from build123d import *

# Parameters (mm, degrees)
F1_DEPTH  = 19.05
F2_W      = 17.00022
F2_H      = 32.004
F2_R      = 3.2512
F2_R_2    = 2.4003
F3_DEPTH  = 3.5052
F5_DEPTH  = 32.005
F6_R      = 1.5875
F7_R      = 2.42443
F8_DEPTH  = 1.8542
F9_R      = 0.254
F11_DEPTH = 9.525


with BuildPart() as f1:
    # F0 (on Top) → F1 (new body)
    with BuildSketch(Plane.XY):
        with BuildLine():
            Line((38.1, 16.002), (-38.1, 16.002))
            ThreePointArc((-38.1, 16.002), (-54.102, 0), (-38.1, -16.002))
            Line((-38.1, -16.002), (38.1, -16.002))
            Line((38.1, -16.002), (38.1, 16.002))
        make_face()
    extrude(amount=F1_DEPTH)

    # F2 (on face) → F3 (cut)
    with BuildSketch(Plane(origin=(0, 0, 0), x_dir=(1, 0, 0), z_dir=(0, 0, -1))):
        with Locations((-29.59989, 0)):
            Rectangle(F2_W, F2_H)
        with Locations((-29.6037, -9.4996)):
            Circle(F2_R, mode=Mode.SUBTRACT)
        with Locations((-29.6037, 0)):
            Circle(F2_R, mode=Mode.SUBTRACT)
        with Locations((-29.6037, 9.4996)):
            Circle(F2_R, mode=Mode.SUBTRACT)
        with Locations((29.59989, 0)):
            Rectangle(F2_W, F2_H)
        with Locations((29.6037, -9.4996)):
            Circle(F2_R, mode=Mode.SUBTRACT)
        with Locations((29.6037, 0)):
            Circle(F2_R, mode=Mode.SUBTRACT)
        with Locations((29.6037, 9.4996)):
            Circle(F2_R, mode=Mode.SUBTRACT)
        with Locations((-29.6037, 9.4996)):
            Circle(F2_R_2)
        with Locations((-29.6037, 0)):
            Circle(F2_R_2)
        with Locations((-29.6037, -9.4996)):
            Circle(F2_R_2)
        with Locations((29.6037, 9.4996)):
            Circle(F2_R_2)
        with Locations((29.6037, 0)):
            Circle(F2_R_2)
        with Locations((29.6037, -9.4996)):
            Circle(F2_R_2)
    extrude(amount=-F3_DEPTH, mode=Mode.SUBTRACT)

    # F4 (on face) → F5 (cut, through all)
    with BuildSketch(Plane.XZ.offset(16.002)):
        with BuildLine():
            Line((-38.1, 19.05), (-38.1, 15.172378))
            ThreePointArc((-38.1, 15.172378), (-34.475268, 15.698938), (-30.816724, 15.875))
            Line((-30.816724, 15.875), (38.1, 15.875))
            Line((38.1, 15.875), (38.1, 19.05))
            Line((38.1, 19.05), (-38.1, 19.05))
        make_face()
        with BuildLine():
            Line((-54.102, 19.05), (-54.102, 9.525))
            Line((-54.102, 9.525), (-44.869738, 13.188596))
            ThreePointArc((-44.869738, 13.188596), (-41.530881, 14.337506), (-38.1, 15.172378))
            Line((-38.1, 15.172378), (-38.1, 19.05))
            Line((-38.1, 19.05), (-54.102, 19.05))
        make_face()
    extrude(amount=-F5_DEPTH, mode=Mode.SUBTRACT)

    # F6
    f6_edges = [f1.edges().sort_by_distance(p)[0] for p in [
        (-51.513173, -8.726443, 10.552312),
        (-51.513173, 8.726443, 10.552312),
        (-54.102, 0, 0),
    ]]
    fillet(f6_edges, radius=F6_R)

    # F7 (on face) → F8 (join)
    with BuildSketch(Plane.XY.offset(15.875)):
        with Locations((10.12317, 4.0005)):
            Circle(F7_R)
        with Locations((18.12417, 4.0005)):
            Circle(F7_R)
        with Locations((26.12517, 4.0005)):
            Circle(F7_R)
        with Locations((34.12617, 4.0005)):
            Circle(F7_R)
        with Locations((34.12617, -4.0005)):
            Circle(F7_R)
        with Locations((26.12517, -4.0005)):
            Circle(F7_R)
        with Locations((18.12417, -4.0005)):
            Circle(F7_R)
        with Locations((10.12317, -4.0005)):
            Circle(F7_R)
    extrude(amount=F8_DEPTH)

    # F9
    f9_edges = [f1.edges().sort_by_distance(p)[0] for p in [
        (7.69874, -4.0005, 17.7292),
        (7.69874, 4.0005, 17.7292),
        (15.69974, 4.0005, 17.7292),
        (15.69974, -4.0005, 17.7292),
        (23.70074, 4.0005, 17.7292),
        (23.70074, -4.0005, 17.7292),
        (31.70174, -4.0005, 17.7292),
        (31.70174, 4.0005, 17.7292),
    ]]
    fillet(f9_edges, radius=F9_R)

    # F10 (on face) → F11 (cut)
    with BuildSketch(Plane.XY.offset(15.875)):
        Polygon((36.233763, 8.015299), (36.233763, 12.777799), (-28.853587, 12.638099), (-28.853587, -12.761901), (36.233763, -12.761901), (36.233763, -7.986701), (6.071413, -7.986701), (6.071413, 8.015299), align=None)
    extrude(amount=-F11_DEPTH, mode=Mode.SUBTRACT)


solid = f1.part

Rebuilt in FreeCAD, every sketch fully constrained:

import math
import FreeCAD as App
import Part
import Sketcher
Q = App.Units.Quantity


def edges_at(feature, points):
    """Names of the edges that pass closest to the given points."""
    edges = feature.Shape.Edges
    near = lambda p: min(range(len(edges)), key=lambda i: edges[i].distToShape(Part.Vertex(*p))[0])
    return sorted({f"Edge{near(p) + 1}" for p in points})

doc = App.newDocument("Part")
params = doc.addObject("Spreadsheet::Sheet", "Params")
for row, (alias, value) in enumerate([
    ("sketch1_width", "3 in"),
    ("sketch1_radius", "0.63 in"),
    ("pad1_length", "0.75 in"),
    ("sketch2_diameter", "0.256 in"),
    ("sketch2_diameter2", "0.189 in"),
    ("sketch2_height", "1.26 in"),
    ("pocket1_length", "0.138 in"),
    ("sketch3_width", "3.63 in"),
    ("sketch3_height", "0.125 in"),
    ("sketch3_height2", "0.375 in"),
    ("fillet_radius", "0.0625 in"),
    ("pad2_length", "0.073 in"),
    ("fillet2_radius", "0.01 in"),
    ("sketch5_height", "1 in"),
    ("sketch5_height2", "0.63 in"),
    ("sketch5_height3", "0.1875 in"),
    ("sketch5_height4", "0.188 in"),
    ("sketch5_length", "2.5625 in"),
    ("pocket3_length", "0.375 in"),
], start=1):
    params.set(f"A{row}", alias)
    params.set(f"B{row}", "=" + value)
    params.setAlias(f"B{row}", alias)

body = doc.addObject("PartDesign::Body", "Body")

# Sketch on XY plane
sketch1 = body.newObject("Sketcher::SketchObject", "Sketch")
sketch1.AttachmentSupport = (doc.getObject("XY_Plane"), [""])
sketch1.MapMode = "FlatFace"
sketch1.addGeometry([
    Part.LineSegment(App.Vector(38, 16, 0), App.Vector(-38, 16, 0)),
    Part.ArcOfCircle(Part.Circle(App.Vector(-38, 0, 0), App.Vector(0, 0, 1), 16), math.radians(90), math.radians(270)),
    Part.LineSegment(App.Vector(-38, -16, 0), App.Vector(38, -16, 0)),
    Part.LineSegment(App.Vector(38, -16, 0), App.Vector(38, 16, 0)),
], False)
sketch1.addConstraint([
    Sketcher.Constraint("Tangent", 0, 2, 1, 1),
    Sketcher.Constraint("Tangent", 1, 2, 2, 1),
    Sketcher.Constraint("Coincident", 2, 2, 3, 1),
    Sketcher.Constraint("Coincident", 3, 2, 0, 1),
    Sketcher.Constraint("Horizontal", 0),
    Sketcher.Constraint("Horizontal", 2),
    Sketcher.Constraint("Vertical", 3),
    Sketcher.Constraint("Symmetric", 0, 2, 2, 2, -1, 1),
    Sketcher.Constraint("DistanceX", 0, 2, 0, 1, Q("3 in")),
    Sketcher.Constraint("Radius", 1, Q("0.63 in")),
])
sketch1.setExpression("Constraints[8]", "Params.sketch1_width")
sketch1.setExpression("Constraints[9]", "Params.sketch1_radius")
pad1 = body.newObject("PartDesign::Pad", "Pad")
pad1.Profile = sketch1
pad1.setExpression("Length", "Params.pad1_length")

# Sketch on XY plane
sketch2 = body.newObject("Sketcher::SketchObject", "Sketch001")
sketch2.AttachmentSupport = (doc.getObject("XY_Plane"), [""])
sketch2.MapMode = "FlatFace"
sketch2.addGeometry([
    Part.LineSegment(App.Vector(-38.1, -16, 0), App.Vector(-38.1, 16, 0)),  # 0
    Part.LineSegment(App.Vector(-38.1, 16, 0), App.Vector(-21.1, 16, 0)),  # 1
    Part.LineSegment(App.Vector(-21.1, 16, 0), App.Vector(-21.1, -16, 0)),  # 2
    Part.LineSegment(App.Vector(-21.1, -16, 0), App.Vector(-38.1, -16, 0)),  # 3
    Part.Circle(App.Vector(-29.6, 9.5, 0), App.Vector(0, 0, 1), 3.3),  # 4
    Part.Circle(App.Vector(-29.6, 0, 0), App.Vector(0, 0, 1), 3.3),  # 5
    Part.Circle(App.Vector(-29.6, -9.5, 0), App.Vector(0, 0, 1), 3.3),  # 6
    Part.LineSegment(App.Vector(21.1, -16, 0), App.Vector(21.1, 16, 0)),  # 7
    Part.LineSegment(App.Vector(21.1, 16, 0), App.Vector(38.1, 16, 0)),  # 8
    Part.LineSegment(App.Vector(38.1, 16, 0), App.Vector(38.1, -16, 0)),  # 9
    Part.LineSegment(App.Vector(38.1, -16, 0), App.Vector(21.1, -16, 0)),  # 10
    Part.Circle(App.Vector(29.6, 9.5, 0), App.Vector(0, 0, 1), 3.3),  # 11
    Part.Circle(App.Vector(29.6, 0, 0), App.Vector(0, 0, 1), 3.3),  # 12
    Part.Circle(App.Vector(29.6, -9.5, 0), App.Vector(0, 0, 1), 3.3),  # 13
    Part.Circle(App.Vector(-29.6, -9.5, 0), App.Vector(0, 0, 1), 2.4),  # 14
    Part.Circle(App.Vector(-29.6, 0, 0), App.Vector(0, 0, 1), 2.4),  # 15
    Part.Circle(App.Vector(-29.6, 9.5, 0), App.Vector(0, 0, 1), 2.4),  # 16
    Part.Circle(App.Vector(29.6, -9.5, 0), App.Vector(0, 0, 1), 2.4),  # 17
    Part.Circle(App.Vector(29.6, 0, 0), App.Vector(0, 0, 1), 2.4),  # 18
    Part.Circle(App.Vector(29.6, 9.5, 0), App.Vector(0, 0, 1), 2.4),  # 19
], False)
sketch2.addConstraint([
    Sketcher.Constraint("Coincident", 0, 2, 1, 1),
    Sketcher.Constraint("Coincident", 1, 2, 2, 1),
    Sketcher.Constraint("Coincident", 2, 2, 3, 1),
    Sketcher.Constraint("Coincident", 3, 2, 0, 1),
    Sketcher.Constraint("Coincident", 7, 2, 8, 1),
    Sketcher.Constraint("Coincident", 8, 2, 9, 1),
    Sketcher.Constraint("Coincident", 9, 2, 10, 1),
    Sketcher.Constraint("Coincident", 10, 2, 7, 1),
    Sketcher.Constraint("Vertical", 0),
    Sketcher.Constraint("Horizontal", 1),
    Sketcher.Constraint("Vertical", 2),
    Sketcher.Constraint("Horizontal", 3),
    Sketcher.Constraint("Vertical", 7),
    Sketcher.Constraint("Horizontal", 8),
    Sketcher.Constraint("Vertical", 9),
    Sketcher.Constraint("Horizontal", 10),
    Sketcher.Constraint("Coincident", 14, 3, 6, 3),
    Sketcher.Constraint("Coincident", 15, 3, 5, 3),
    Sketcher.Constraint("Coincident", 16, 3, 4, 3),
    Sketcher.Constraint("Coincident", 17, 3, 13, 3),
    Sketcher.Constraint("Coincident", 18, 3, 12, 3),
    Sketcher.Constraint("Coincident", 19, 3, 11, 3),
    Sketcher.Constraint("Equal", 4, 5),
    Sketcher.Constraint("Equal", 5, 6),
    Sketcher.Constraint("Equal", 6, 11),
    Sketcher.Constraint("Equal", 11, 12),
    Sketcher.Constraint("Equal", 12, 13),
    Sketcher.Constraint("Equal", 14, 15),
    Sketcher.Constraint("Equal", 15, 16),
    Sketcher.Constraint("Equal", 16, 17),
    Sketcher.Constraint("Equal", 17, 18),
    Sketcher.Constraint("Equal", 18, 19),
    Sketcher.Constraint("Symmetric", 6, 3, 11, 3, -1, 1),
    Sketcher.Constraint("Symmetric", 5, 3, 12, 3, -1, 1),
    Sketcher.Constraint("Symmetric", 4, 3, 13, 3, -1, 1),
    Sketcher.Constraint("Symmetric", 2, 2, 7, 2, -1, 1),
    Sketcher.Constraint("Symmetric", 0, 2, 9, 2, -1, 1),
    Sketcher.Constraint("Symmetric", 4, 3, 11, 3, -2),
    Sketcher.Constraint("PointOnObject", 5, 3, -1),
    Sketcher.Constraint("Horizontal", 1, 2, 7, 2),
    Sketcher.Constraint("Vertical", 4, 3, 5, 3),
    Sketcher.Constraint("Diameter", 4, Q("0.256 in")),
    Sketcher.Constraint("Diameter", 14, Q("0.189 in")),
    Sketcher.Constraint("DistanceY", 0, 1, 0, 2, Q("1.26 in")),
    Sketcher.Constraint("DistanceX", 0, 2, -1, 1, Q("1.5 in")),
    Sketcher.Constraint("DistanceX", 1, 1, 1, 2, Q("0.6693 in")),
    Sketcher.Constraint("DistanceY", -1, 1, 4, 3, Q("0.374 in")),
    Sketcher.Constraint("DistanceX", 4, 3, 11, 3, Q("2.331 in")),
])
sketch2.setExpression("Constraints[41]", "Params.sketch2_diameter")
sketch2.setExpression("Constraints[42]", "Params.sketch2_diameter2")
sketch2.setExpression("Constraints[43]", "Params.sketch2_height")
pocket1 = body.newObject("PartDesign::Pocket", "Pocket")
pocket1.Profile = sketch2
pocket1.setExpression("Length", "Params.pocket1_length")
pocket1.Reversed = True

# Sketch on XZ plane
sketch3 = body.newObject("Sketcher::SketchObject", "Sketch002")
sketch3.AttachmentSupport = (doc.getObject("XZ_Plane"), [""])
sketch3.MapMode = "FlatFace"
sketch3.AttachmentOffset = App.Placement(App.Vector(0, 0, 0.63 * 25.4), App.Rotation())
sketch3.addGeometry([
    Part.ArcOfCircle(Part.Circle(App.Vector(-30.8, -22.2, 0), App.Vector(0, 0, 1), 38.1), math.radians(90), math.radians(101.02)),  # 0
    Part.LineSegment(App.Vector(-30.8, 15.9, 0), App.Vector(38.1, 15.9, 0)),  # 1
    Part.LineSegment(App.Vector(38.1, 15.9, 0), App.Vector(38.1, 19.1, 0)),  # 2
    Part.LineSegment(App.Vector(38.1, 19.1, 0), App.Vector(-54.1, 19.1, 0)),  # 3
    Part.LineSegment(App.Vector(-54.1, 19.1, 0), App.Vector(-54.1, 9.5, 0)),  # 4
    Part.LineSegment(App.Vector(-54.1, 9.5, 0), App.Vector(-44.9, 13.2, 0)),  # 5
    Part.ArcOfCircle(Part.Circle(App.Vector(-30.8, -22.2, 0), App.Vector(0, 0, 1), 38.1), math.radians(101.02), math.radians(111.64)),  # 6
], False)
sketch3.addConstraint([
    Sketcher.Constraint("Tangent", 0, 1, 1, 1),
    Sketcher.Constraint("Coincident", 1, 2, 2, 1),
    Sketcher.Constraint("Coincident", 2, 2, 3, 1),
    Sketcher.Constraint("Coincident", 3, 2, 4, 1),
    Sketcher.Constraint("Coincident", 4, 2, 5, 1),
    Sketcher.Constraint("Tangent", 5, 2, 6, 2),
    Sketcher.Constraint("Tangent", 6, 1, 0, 2),
    Sketcher.Constraint("Horizontal", 1),
    Sketcher.Constraint("Vertical", 2),
    Sketcher.Constraint("Horizontal", 3),
    Sketcher.Constraint("Vertical", 4),
    Sketcher.Constraint("DistanceX", 3, 2, 3, 1, Q("3.63 in")),
    Sketcher.Constraint("DistanceX", -1, 1, 1, 2, Q("1.5 in")),
    Sketcher.Constraint("DistanceX", 6, 1, -1, 1, Q("1.5 in")),
    Sketcher.Constraint("DistanceY", 2, 1, 2, 2, Q("0.125 in")),
    Sketcher.Constraint("DistanceY", 4, 2, 4, 1, Q("0.375 in")),
    Sketcher.Constraint("DistanceY", -1, 1, 2, 2, Q("0.75 in")),
    Sketcher.Constraint("Radius", 0, 38.099937),
    Sketcher.Constraint("Radius", 6, 38.099945),
    Sketcher.Constraint("DistanceX", 5, 2, 6, 3, 14.052999),
])
sketch3.setExpression("Constraints[11]", "Params.sketch3_width")
sketch3.setExpression("Constraints[14]", "Params.sketch3_height")
sketch3.setExpression("Constraints[15]", "Params.sketch3_height2")
pocket2 = body.newObject("PartDesign::Pocket", "Pocket001")
pocket2.Profile = sketch3
pocket2.Type = "ThroughAll"
doc.recompute()

fillet = body.newObject("PartDesign::Fillet", "Fillet")
fillet.Base = (pocket2, edges_at(pocket2, [(-51.513, -8.726, 10.552), (-51.513, 8.726, 10.552), (-54.102, 0, 0)]))
fillet.setExpression("Radius", "Params.fillet_radius")

# Sketch on XY plane
sketch4 = body.newObject("Sketcher::SketchObject", "Sketch003")
sketch4.AttachmentSupport = (doc.getObject("XY_Plane"), [""])
sketch4.MapMode = "FlatFace"
sketch4.AttachmentOffset = App.Placement(App.Vector(0, 0, 0.625 * 25.4), App.Rotation())
sketch4.addGeometry([
    Part.Circle(App.Vector(10.1, 4, 0), App.Vector(0, 0, 1), 2.4),  # 0
    Part.Circle(App.Vector(18.1, 4, 0), App.Vector(0, 0, 1), 2.4),  # 1
    Part.Circle(App.Vector(26.1, 4, 0), App.Vector(0, 0, 1), 2.4),  # 2
    Part.Circle(App.Vector(34.1, 4, 0), App.Vector(0, 0, 1), 2.4),  # 3
    Part.Circle(App.Vector(34.1, -4, 0), App.Vector(0, 0, 1), 2.4),  # 4
    Part.Circle(App.Vector(26.1, -4, 0), App.Vector(0, 0, 1), 2.4),  # 5
    Part.Circle(App.Vector(18.1, -4, 0), App.Vector(0, 0, 1), 2.4),  # 6
    Part.Circle(App.Vector(10.1, -4, 0), App.Vector(0, 0, 1), 2.4),  # 7
], False)
sketch4.addConstraint([
    Sketcher.Constraint("Equal", 0, 1),
    Sketcher.Constraint("Equal", 1, 2),
    Sketcher.Constraint("Equal", 2, 3),
    Sketcher.Constraint("Equal", 3, 4),
    Sketcher.Constraint("Equal", 4, 5),
    Sketcher.Constraint("Equal", 5, 6),
    Sketcher.Constraint("Equal", 6, 7),
    Sketcher.Constraint("Symmetric", 3, 3, 4, 3, -1),
    Sketcher.Constraint("Symmetric", 2, 3, 5, 3, -1),
    Sketcher.Constraint("Symmetric", 1, 3, 6, 3, -1),
    Sketcher.Constraint("Symmetric", 0, 3, 7, 3, -1),
    Sketcher.Constraint("Horizontal", 0, 3, 1, 3),
    Sketcher.Constraint("Horizontal", 1, 3, 2, 3),
    Sketcher.Constraint("Horizontal", 2, 3, 3, 3),
    Sketcher.Constraint("Diameter", 0, Q("0.1909 in")),
    Sketcher.Constraint("DistanceX", 0, 3, 2, 3, Q("0.63 in")),
    Sketcher.Constraint("DistanceX", 1, 3, 3, 3, Q("0.63 in")),
    Sketcher.Constraint("DistanceX", 0, 3, 1, 3, Q("0.315 in")),
    Sketcher.Constraint("DistanceY", 4, 3, 3, 3, Q("0.315 in")),
    Sketcher.Constraint("DistanceX", -1, 1, 0, 3, 10.12317),
])
pad2 = body.newObject("PartDesign::Pad", "Pad001")
pad2.Profile = sketch4
pad2.setExpression("Length", "Params.pad2_length")
doc.recompute()

fillet2 = body.newObject("PartDesign::Fillet", "Fillet001")
fillet2.Base = (pad2, edges_at(pad2, [
    (7.699, -4, 17.729),
    (7.699, 4, 17.729),
    (15.7, 4, 17.729),
    (15.7, -4, 17.729),
    (23.701, 4, 17.729),
    (23.701, -4, 17.729),
    (31.702, -4, 17.729),
    (31.702, 4, 17.729),
]))
fillet2.setExpression("Radius", "Params.fillet2_radius")

# Sketch on XY plane
sketch5 = body.newObject("Sketcher::SketchObject", "Sketch004")
sketch5.AttachmentSupport = (doc.getObject("XY_Plane"), [""])
sketch5.MapMode = "FlatFace"
sketch5.AttachmentOffset = App.Placement(App.Vector(0, 0, 0.625 * 25.4), App.Rotation())
sketch5.addGeometry([
    Part.LineSegment(App.Vector(36.2, 8, 0), App.Vector(36.2, 12.8, 0)),  # 0
    Part.LineSegment(App.Vector(36.2, 12.8, 0), App.Vector(-28.9, 12.6, 0)),  # 1
    Part.LineSegment(App.Vector(-28.9, 12.6, 0), App.Vector(-28.9, -12.8, 0)),  # 2
    Part.LineSegment(App.Vector(-28.9, -12.8, 0), App.Vector(36.2, -12.8, 0)),  # 3
    Part.LineSegment(App.Vector(36.2, -12.8, 0), App.Vector(36.2, -8, 0)),  # 4
    Part.LineSegment(App.Vector(36.2, -8, 0), App.Vector(6.1, -8, 0)),  # 5
    Part.LineSegment(App.Vector(6.1, -8, 0), App.Vector(6.1, 8, 0)),  # 6
    Part.LineSegment(App.Vector(6.1, 8, 0), App.Vector(36.2, 8, 0)),  # 7
], False)
sketch5.addConstraint([
    Sketcher.Constraint("Coincident", 0, 2, 1, 1),
    Sketcher.Constraint("Coincident", 1, 2, 2, 1),
    Sketcher.Constraint("Coincident", 2, 2, 3, 1),
    Sketcher.Constraint("Coincident", 3, 2, 4, 1),
    Sketcher.Constraint("Coincident", 4, 2, 5, 1),
    Sketcher.Constraint("Coincident", 5, 2, 6, 1),
    Sketcher.Constraint("Coincident", 6, 2, 7, 1),
    Sketcher.Constraint("Coincident", 7, 2, 0, 1),
    Sketcher.Constraint("Vertical", 0),
    Sketcher.Constraint("Vertical", 2),
    Sketcher.Constraint("Horizontal", 3),
    Sketcher.Constraint("Vertical", 4),
    Sketcher.Constraint("Horizontal", 5),
    Sketcher.Constraint("Vertical", 6),
    Sketcher.Constraint("Horizontal", 7),
    Sketcher.Constraint("Vertical", 0, 2, 3, 2),
    Sketcher.Constraint("DistanceY", 2, 2, 2, 1, Q("1 in")),
    Sketcher.Constraint("DistanceY", 6, 1, 6, 2, Q("0.63 in")),
    Sketcher.Constraint("DistanceY", 0, 1, 0, 2, Q("0.1875 in")),
    Sketcher.Constraint("DistanceY", 4, 1, 4, 2, Q("0.188 in")),
    Sketcher.Constraint("Distance", 1, Q("2.5625 in")),
    Sketcher.Constraint("DistanceX", 2, 2, 5, 2, Q("1.375 in")),
    Sketcher.Constraint("DistanceY", -1, 1, 0, 2, 12.777799),
    Sketcher.Constraint("DistanceX", -1, 1, 0, 2, 36.233763),
])
sketch5.setExpression("Constraints[16]", "Params.sketch5_height")
sketch5.setExpression("Constraints[17]", "Params.sketch5_height2")
sketch5.setExpression("Constraints[18]", "Params.sketch5_height3")
sketch5.setExpression("Constraints[19]", "Params.sketch5_height4")
sketch5.setExpression("Constraints[20]", "Params.sketch5_length")
pocket3 = body.newObject("PartDesign::Pocket", "Pocket002")
pocket3.Profile = sketch5
pocket3.setExpression("Length", "Params.pocket3_length")

doc.recompute()
